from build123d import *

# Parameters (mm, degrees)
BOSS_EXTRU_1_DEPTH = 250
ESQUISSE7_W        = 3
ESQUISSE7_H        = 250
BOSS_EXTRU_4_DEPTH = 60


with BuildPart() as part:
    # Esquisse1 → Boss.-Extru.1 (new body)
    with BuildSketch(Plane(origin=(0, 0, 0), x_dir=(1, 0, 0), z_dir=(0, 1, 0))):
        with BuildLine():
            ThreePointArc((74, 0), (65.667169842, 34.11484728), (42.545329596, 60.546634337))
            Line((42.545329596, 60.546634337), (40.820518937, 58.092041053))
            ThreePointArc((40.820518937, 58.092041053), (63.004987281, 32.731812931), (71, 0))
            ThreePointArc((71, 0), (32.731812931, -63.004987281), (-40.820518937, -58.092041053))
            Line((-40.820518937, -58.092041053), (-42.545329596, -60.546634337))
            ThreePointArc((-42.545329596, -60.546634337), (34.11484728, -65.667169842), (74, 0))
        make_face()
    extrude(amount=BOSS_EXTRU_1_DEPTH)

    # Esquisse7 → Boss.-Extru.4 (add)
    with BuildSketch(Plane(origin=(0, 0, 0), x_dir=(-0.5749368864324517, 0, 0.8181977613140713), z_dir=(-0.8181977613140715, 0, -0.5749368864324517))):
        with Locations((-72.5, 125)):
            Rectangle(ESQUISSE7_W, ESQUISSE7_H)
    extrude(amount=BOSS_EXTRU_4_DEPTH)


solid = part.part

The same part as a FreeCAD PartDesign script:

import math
import FreeCAD as App
import Part
import Sketcher


def add_polygon(sketch, points):
    """Adds a closed chain of lines whose ends are joined by coincident constraints."""
    first, n = sketch.GeometryCount, len(points)
    for a, b in zip(points, points[1:] + points[:1]):
        sketch.addGeometry(Part.LineSegment(App.Vector(*a, 0), App.Vector(*b, 0)), False)
    for i in range(n):
        sketch.addConstraint(Sketcher.Constraint("Coincident", first + i, 2, first + (i + 1) % n, 1))

doc = App.newDocument("Part")
body = doc.addObject("PartDesign::Body", "Body")

sketch1 = doc.addObject("Sketcher::SketchObject", "Sketch")
body.addObject(sketch1)
sketch1.AttachmentSupport = (doc.XZ_Plane, [""])
sketch1.MapMode = "FlatFace"
sketch1.addGeometry(Part.ArcOfCircle(Part.Circle(App.Vector(0, 0, 0), App.Vector(0, 0, 1), 74), math.radians(-54.904788), math.radians(0)), False)
sketch1.addGeometry(Part.LineSegment(App.Vector(42.54533, -60.546634, 0), App.Vector(40.820519, -58.092041, 0)), False)
sketch1.addGeometry(Part.ArcOfCircle(Part.Circle(App.Vector(0, 0, 0), App.Vector(0, 0, 1), 71), math.radians(-54.904788), math.radians(0)), False)
sketch1.addGeometry(Part.ArcOfCircle(Part.Circle(App.Vector(0, 0, 0), App.Vector(0, 0, 1), 71), math.radians(0), math.radians(125.095212)), False)
sketch1.addGeometry(Part.LineSegment(App.Vector(-40.820519, 58.092041, 0), App.Vector(-42.54533, 60.546634, 0)), False)
sketch1.addGeometry(Part.ArcOfCircle(Part.Circle(App.Vector(0, 0, 0), App.Vector(0, 0, 1), 74), math.radians(0), math.radians(125.095212)), False)
sketch1.addConstraint(Sketcher.Constraint("Coincident", 0, 1, 1, 1))
sketch1.addConstraint(Sketcher.Constraint("Coincident", 1, 2, 2, 1))
sketch1.addConstraint(Sketcher.Constraint("Tangent", 2, 2, 3, 1))
sketch1.addConstraint(Sketcher.Constraint("Coincident", 3, 2, 4, 1))
sketch1.addConstraint(Sketcher.Constraint("Coincident", 4, 2, 5, 2))
sketch1.addConstraint(Sketcher.Constraint("Tangent", 5, 1, 0, 2))
sketch1.addConstraint(Sketcher.Constraint("Coincident", 0, 3, -1, 1))
sketch1.addConstraint(Sketcher.Constraint("Coincident", 2, 3, -1, 1))
sketch1.addConstraint(Sketcher.Constraint("Equal", 2, 3))
sketch1.addConstraint(Sketcher.Constraint("Equal", 0, 5))
sketch1.addConstraint(Sketcher.Constraint("PointOnObject", 2, 2, -1))
sketch1.addConstraint(Sketcher.Constraint("PointOnObject", 5, 1, -1))
sketch1.addConstraint(Sketcher.Constraint("Parallel", 1, 4))
sketch1.addConstraint(Sketcher.Constraint("Radius", 0, 74.0))
sketch1.addConstraint(Sketcher.Constraint("Radius", 2, 71.0))
sketch1.addConstraint(Sketcher.Constraint("DistanceX", -1, 1, 0, 1, 42.54533))
sketch1.addConstraint(Sketcher.Constraint("DistanceX", -1, 1, 1, 2, 40.820519))
sketch1.addConstraint(Sketcher.Constraint("DistanceX", 3, 2, -1, 1, 40.820519))
pad1 = doc.addObject("PartDesign::Pad", "Pad")
body.addObject(pad1)
pad1.Profile = sketch1
pad1.Length = 250
pad1.Reversed = True

sketch2 = doc.addObject("Sketcher::SketchObject", "Sketch001")
body.addObject(sketch2)
sketch2.Placement = App.Placement(App.Vector(0, 0, 0), App.Rotation(App.Vector(-0.574936886, 0, 0.818197761), App.Vector(0, 0.999999999, 0), App.Vector(-0.818197761, 0, -0.574936886), "ZXY"))
add_polygon(sketch2, [(-74, 249.999999), (-74, 0), (-71, 0), (-71, 249.999999)])
sketch2.addConstraint(Sketcher.Constraint("Vertical", 0))
sketch2.addConstraint(Sketcher.Constraint("Horizontal", 1))
sketch2.addConstraint(Sketcher.Constraint("Vertical", 2))
sketch2.addConstraint(Sketcher.Constraint("Horizontal", 3))
sketch2.addConstraint(Sketcher.Constraint("PointOnObject", 0, 2, -1))
sketch2.addConstraint(Sketcher.Constraint("DistanceX", 1, 1, 1, 2, 3.0))
sketch2.addConstraint(Sketcher.Constraint("DistanceY", 0, 2, 0, 1, 249.999999))
sketch2.addConstraint(Sketcher.Constraint("DistanceX", 0, 2, -1, 1, 74.0))
pad2 = doc.addObject("PartDesign::Pad", "Pad001")
body.addObject(pad2)
pad2.Profile = sketch2
pad2.Length = 60

doc.recompute()
